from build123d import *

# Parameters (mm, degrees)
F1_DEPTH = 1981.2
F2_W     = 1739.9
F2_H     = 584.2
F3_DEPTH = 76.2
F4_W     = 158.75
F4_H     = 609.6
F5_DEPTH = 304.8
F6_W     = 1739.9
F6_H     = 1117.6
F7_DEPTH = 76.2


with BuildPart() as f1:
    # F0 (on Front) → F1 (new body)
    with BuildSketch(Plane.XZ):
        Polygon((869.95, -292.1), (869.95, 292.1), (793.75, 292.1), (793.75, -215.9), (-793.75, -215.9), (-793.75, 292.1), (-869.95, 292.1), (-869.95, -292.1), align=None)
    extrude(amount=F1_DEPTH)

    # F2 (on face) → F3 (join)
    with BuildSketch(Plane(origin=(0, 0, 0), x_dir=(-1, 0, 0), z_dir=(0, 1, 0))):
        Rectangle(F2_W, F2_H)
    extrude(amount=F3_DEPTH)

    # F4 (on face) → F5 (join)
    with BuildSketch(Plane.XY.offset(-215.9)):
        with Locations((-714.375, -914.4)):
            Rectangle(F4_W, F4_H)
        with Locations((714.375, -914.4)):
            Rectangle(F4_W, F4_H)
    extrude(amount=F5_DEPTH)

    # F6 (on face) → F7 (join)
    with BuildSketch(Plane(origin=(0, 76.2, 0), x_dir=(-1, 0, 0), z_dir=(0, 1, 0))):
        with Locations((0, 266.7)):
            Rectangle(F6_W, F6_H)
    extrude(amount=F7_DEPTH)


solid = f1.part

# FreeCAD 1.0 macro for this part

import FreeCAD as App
import Part
import Sketcher

V = App.Vector
Q = App.Units.Quantity


def add_polygon(sketch, points):
    """Adds a closed chain of lines whose ends are joined by coincident constraints."""
    first, n = sketch.GeometryCount, len(points)
    for a, b in zip(points, points[1:] + points[:1]):
        sketch.addGeometry(Part.LineSegment(App.Vector(*a, 0), App.Vector(*b, 0)), False)
    for i in range(n):
        sketch.addConstraint(Sketcher.Constraint("Coincident", first + i, 2, first + (i + 1) % n, 1))

doc = App.newDocument("Part")
body = doc.addObject("PartDesign::Body", "Body")

sketch1 = doc.addObject("Sketcher::SketchObject", "Sketch")
body.addObject(sketch1)
sketch1.AttachmentSupport = (doc.XZ_Plane, [""])
sketch1.MapMode = "FlatFace"
add_polygon(sketch1, [(870, -292), (870, 292), (794, 292), (794, -216), (-794, -216), (-794, 292), (-870, 292), (-870, -292)])
sketch1.addConstraint([
    Sketcher.Constraint("Vertical", 0),
    Sketcher.Constraint("Horizontal", 1),
    Sketcher.Constraint("Vertical", 2),
    Sketcher.Constraint("Horizontal", 3),
    Sketcher.Constraint("Vertical", 4),
    Sketcher.Constraint("Horizontal", 5),
    Sketcher.Constraint("Vertical", 6),
    Sketcher.Constraint("Horizontal", 7),
    Sketcher.Constraint("Symmetric", 0, 2, 6, 2, -1, 1),
    Sketcher.Constraint("Symmetric", 1, 2, 4, 2, -2),
    Sketcher.Constraint("DistanceX", 1, 2, 1, 1, Q("3 in")),
    Sketcher.Constraint("DistanceY", 0, 1, 0, 2, Q("23 in")),
    Sketcher.Constraint("DistanceY", 2, 2, 2, 1, Q("20 in")),
    Sketcher.Constraint("DistanceX", 3, 2, 3, 1, Q("62.5 in")),
])
pad1 = doc.addObject("PartDesign::Pad", "Pad")
body.addObject(pad1)
pad1.Profile = sketch1
pad1.Length = Q("78 in")

sketch2 = doc.addObject("Sketcher::SketchObject", "Sketch001")
body.addObject(sketch2)
sketch2.AttachmentSupport = (doc.XZ_Plane, [""])
sketch2.MapMode = "FlatFace"
add_polygon(sketch2, [(870, 292), (870, -292), (-870, -292), (-870, 292)])
sketch2.addConstraint([
    Sketcher.Constraint("Vertical", 0),
    Sketcher.Constraint("Horizontal", 1),
    Sketcher.Constraint("Vertical", 2),
    Sketcher.Constraint("Horizontal", 3),
    Sketcher.Constraint("Symmetric", 0, 2, 2, 2, -1, 1),
    Sketcher.Constraint("DistanceY", 0, 2, 0, 1, Q("23 in")),
    Sketcher.Constraint("DistanceX", 1, 2, 1, 1, Q("68.5 in")),
])
pad2 = doc.addObject("PartDesign::Pad", "Pad001")
body.addObject(pad2)
pad2.Profile = sketch2
pad2.Length = Q("3 in")
pad2.Reversed = True

sketch3 = doc.addObject("Sketcher::SketchObject", "Sketch002")
body.addObject(sketch3)
sketch3.AttachmentSupport = (doc.XY_Plane, [""])
sketch3.MapMode = "FlatFace"
sketch3.AttachmentOffset = App.Placement(V(0, 0, -8.5 * 25.4), App.Rotation())
add_polygon(sketch3, [(-794, -610), (-794, -1219), (-635, -1219), (-635, -610)])
add_polygon(sketch3, [(635, -610), (635, -1219), (794, -1219), (794, -610)])
sketch3.addConstraint([
    Sketcher.Constraint("Vertical", 0),
    Sketcher.Constraint("Horizontal", 1),
    Sketcher.Constraint("Vertical", 2),
    Sketcher.Constraint("Horizontal", 3),
    Sketcher.Constraint("Vertical", 4),
    Sketcher.Constraint("Horizontal", 5),
    Sketcher.Constraint("Vertical", 6),
    Sketcher.Constraint("Horizontal", 7),
    Sketcher.Constraint("Symmetric", 1, 2, 4, 2, -2),
    Sketcher.Constraint("Symmetric", 3, 2, 6, 2, -2),
    Sketcher.Constraint("DistanceY", 0, 2, 0, 1, Q("24 in")),
    Sketcher.Constraint("DistanceY", 0, 2, -1, 1, Q("48 in")),
    Sketcher.Constraint("DistanceX", 1, 2, -1, 1, Q("25 in")),
    Sketcher.Constraint("DistanceX", 1, 1, 1, 2, Q("6.25 in")),
])
pad3 = doc.addObject("PartDesign::Pad", "Pad002")
body.addObject(pad3)
pad3.Profile = sketch3
pad3.Length = Q("12 in")

sketch4 = doc.addObject("Sketcher::SketchObject", "Sketch003")
body.addObject(sketch4)
sketch4.AttachmentSupport = (doc.XZ_Plane, [""])
sketch4.MapMode = "FlatFace"
sketch4.AttachmentOffset = App.Placement(V(0, 0, -3 * 25.4), App.Rotation())
add_polygon(sketch4, [(870, 826), (870, -292), (-870, -292), (-870, 826)])
sketch4.addConstraint([
    Sketcher.Constraint("Vertical", 0),
    Sketcher.Constraint("Horizontal", 1),
    Sketcher.Constraint("Vertical", 2),
    Sketcher.Constraint("Horizontal", 3),
    Sketcher.Constraint("DistanceY", 0, 2, 0, 1, Q("44 in")),
    Sketcher.Constraint("DistanceX", 1, 2, 1, 1, Q("68.5 in")),
    Sketcher.Constraint("DistanceY", 0, 2, -1, 1, Q("11.5 in")),
    Sketcher.Constraint("DistanceX", -1, 1, 0, 2, Q("34.25 in")),
])
pad4 = doc.addObject("PartDesign::Pad", "Pad003")
body.addObject(pad4)
pad4.Profile = sketch4
pad4.Length = Q("3 in")
pad4.Reversed = True

doc.recompute()
